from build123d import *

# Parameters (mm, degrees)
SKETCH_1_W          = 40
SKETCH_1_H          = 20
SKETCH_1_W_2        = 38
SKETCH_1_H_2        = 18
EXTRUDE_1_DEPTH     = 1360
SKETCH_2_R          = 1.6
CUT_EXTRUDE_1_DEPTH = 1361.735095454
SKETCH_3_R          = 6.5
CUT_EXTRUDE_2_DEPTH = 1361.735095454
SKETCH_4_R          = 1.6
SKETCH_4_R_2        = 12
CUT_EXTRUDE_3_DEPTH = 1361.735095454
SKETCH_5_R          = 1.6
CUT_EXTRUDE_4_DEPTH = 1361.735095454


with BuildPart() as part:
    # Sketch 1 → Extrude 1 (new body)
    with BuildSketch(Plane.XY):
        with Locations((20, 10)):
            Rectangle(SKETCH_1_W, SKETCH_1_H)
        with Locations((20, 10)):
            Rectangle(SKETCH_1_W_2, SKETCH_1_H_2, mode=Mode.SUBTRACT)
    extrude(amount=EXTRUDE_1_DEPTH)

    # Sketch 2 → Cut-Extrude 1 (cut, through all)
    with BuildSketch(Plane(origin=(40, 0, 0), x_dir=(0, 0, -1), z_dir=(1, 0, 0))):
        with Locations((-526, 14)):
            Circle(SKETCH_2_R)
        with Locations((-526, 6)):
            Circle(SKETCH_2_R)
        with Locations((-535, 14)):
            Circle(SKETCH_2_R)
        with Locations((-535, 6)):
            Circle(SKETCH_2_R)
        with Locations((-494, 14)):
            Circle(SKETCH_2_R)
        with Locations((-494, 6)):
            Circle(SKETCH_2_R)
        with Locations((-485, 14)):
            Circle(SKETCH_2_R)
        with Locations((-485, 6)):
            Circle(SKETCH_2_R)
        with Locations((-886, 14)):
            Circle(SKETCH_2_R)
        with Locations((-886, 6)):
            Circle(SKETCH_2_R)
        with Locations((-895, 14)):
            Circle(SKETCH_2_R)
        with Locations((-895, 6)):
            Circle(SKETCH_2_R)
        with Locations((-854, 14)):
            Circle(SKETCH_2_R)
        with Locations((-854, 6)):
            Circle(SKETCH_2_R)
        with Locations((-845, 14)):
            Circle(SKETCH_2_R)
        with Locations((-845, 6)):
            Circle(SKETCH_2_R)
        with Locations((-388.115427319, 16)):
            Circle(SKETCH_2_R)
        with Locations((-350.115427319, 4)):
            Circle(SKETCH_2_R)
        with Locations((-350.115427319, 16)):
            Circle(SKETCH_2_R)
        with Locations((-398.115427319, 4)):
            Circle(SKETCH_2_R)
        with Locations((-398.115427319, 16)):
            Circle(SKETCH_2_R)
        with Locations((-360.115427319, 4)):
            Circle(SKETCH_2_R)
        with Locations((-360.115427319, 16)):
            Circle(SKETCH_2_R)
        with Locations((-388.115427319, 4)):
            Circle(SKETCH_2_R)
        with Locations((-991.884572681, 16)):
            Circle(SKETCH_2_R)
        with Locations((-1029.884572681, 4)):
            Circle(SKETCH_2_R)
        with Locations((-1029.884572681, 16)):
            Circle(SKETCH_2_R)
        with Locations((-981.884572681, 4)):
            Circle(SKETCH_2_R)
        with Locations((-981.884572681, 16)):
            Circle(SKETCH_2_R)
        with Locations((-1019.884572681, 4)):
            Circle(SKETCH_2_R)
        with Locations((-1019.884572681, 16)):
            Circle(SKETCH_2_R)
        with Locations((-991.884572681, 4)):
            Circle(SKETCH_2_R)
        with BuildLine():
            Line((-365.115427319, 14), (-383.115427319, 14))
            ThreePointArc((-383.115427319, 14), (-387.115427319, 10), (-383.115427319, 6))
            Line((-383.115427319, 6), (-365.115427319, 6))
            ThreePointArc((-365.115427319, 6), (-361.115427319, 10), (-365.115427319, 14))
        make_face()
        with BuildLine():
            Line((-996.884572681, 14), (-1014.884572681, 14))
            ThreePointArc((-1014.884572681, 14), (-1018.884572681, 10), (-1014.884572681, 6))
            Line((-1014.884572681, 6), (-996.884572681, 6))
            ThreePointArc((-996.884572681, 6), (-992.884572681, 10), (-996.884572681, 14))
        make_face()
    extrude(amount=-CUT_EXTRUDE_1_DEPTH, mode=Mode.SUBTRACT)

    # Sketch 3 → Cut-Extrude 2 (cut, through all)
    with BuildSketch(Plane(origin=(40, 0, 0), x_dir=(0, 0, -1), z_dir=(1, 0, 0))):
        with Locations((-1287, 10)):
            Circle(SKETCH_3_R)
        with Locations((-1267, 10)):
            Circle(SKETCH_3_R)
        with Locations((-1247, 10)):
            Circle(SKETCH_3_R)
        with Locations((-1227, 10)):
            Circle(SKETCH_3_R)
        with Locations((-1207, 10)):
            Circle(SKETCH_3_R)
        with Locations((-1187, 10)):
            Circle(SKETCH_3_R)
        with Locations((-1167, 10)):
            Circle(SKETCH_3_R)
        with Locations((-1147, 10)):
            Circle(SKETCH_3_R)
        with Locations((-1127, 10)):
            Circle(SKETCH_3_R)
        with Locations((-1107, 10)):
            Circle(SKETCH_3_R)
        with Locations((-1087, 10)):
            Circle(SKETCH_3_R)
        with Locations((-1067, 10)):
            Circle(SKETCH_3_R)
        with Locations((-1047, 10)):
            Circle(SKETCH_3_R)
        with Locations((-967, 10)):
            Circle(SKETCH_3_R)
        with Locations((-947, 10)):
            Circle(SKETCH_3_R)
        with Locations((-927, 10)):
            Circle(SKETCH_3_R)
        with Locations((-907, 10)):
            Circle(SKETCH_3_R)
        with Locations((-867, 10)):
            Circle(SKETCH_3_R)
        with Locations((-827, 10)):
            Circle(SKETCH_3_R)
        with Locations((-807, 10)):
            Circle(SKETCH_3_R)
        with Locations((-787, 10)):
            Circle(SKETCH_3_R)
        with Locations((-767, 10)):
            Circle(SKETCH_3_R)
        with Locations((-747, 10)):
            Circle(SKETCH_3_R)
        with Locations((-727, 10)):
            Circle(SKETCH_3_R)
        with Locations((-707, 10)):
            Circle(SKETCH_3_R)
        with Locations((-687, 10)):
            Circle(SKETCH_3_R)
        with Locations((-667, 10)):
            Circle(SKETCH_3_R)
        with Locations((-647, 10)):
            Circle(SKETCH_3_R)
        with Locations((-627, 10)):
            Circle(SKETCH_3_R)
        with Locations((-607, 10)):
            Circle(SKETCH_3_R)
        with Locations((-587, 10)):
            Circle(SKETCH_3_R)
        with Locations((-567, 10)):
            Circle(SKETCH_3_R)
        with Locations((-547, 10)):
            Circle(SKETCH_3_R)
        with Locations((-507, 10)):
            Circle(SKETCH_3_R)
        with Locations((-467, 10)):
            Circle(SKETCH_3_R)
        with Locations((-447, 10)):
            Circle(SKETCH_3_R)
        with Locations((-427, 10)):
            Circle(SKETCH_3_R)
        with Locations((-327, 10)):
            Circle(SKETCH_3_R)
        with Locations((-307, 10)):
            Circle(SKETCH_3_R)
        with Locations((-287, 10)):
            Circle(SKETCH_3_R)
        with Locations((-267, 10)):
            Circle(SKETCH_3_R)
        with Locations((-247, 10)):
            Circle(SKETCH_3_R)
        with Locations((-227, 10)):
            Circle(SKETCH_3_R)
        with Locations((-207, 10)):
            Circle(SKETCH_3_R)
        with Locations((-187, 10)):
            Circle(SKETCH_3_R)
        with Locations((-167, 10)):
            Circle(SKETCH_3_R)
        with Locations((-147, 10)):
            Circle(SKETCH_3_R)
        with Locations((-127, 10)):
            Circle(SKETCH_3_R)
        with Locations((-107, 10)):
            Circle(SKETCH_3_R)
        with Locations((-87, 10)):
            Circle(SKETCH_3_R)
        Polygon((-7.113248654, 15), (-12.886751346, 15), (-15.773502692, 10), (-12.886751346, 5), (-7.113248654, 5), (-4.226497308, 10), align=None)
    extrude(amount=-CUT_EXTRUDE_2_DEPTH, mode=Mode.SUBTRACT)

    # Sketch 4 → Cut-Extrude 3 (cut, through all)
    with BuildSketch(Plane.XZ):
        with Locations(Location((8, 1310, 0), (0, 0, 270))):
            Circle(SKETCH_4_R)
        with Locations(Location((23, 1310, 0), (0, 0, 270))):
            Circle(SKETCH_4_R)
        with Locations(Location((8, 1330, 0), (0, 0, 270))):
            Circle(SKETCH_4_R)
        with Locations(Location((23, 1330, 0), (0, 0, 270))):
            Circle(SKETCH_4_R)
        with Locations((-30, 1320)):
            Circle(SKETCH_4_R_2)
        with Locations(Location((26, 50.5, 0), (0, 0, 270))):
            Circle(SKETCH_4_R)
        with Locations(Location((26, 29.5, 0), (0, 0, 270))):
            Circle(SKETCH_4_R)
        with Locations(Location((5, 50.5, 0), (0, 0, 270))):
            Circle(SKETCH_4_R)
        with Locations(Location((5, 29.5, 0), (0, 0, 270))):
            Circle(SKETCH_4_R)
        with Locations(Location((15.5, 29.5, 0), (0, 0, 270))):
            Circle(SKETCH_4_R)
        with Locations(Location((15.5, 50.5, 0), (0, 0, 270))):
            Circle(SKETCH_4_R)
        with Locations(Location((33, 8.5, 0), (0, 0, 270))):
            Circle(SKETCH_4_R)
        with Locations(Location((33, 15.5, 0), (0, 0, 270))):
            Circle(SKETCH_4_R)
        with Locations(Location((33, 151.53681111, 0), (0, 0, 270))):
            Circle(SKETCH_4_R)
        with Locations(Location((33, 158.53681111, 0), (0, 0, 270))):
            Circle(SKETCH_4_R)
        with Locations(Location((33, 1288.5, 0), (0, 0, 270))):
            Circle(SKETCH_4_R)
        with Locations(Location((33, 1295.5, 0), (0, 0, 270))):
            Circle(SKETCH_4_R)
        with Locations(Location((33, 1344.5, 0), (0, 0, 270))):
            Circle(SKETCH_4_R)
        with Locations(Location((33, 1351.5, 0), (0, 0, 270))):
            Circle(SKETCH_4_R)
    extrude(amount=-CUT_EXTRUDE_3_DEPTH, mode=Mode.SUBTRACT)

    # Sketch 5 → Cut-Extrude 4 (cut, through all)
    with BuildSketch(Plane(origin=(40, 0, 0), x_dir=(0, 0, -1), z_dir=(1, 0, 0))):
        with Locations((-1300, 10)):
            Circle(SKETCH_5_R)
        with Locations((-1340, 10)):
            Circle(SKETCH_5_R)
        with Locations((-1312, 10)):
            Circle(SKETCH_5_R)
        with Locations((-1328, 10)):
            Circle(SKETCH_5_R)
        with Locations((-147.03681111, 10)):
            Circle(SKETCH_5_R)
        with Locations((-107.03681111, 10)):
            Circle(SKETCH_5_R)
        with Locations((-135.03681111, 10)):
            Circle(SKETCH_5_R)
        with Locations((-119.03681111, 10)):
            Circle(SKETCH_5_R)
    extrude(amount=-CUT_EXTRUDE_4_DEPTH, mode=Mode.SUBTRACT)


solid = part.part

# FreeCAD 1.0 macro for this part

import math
import FreeCAD as App
import Part
import Sketcher
Q = App.Units.Quantity


def add_polygon(sketch, points):
    """Adds a closed chain of lines whose ends are joined by coincident constraints."""
    first, n = sketch.GeometryCount, len(points)
    for a, b in zip(points, points[1:] + points[:1]):
        sketch.addGeometry(Part.LineSegment(App.Vector(*a, 0), App.Vector(*b, 0)), False)
    for i in range(n):
        sketch.addConstraint(Sketcher.Constraint("Coincident", first + i, 2, first + (i + 1) % n, 1))

doc = App.newDocument("Part")
body = doc.addObject("PartDesign::Body", "Body")

sketch1 = body.newObject("Sketcher::SketchObject", "Sketch")
sketch1.AttachmentSupport = (doc.getObject("XY_Plane"), [""])
sketch1.MapMode = "FlatFace"
add_polygon(sketch1, [(0, 20), (0, 0), (40, 0), (40, 20)])
add_polygon(sketch1, [(39, 1), (1, 1), (1, 19), (39, 19)])
sketch1.addConstraint([
    Sketcher.Constraint("Vertical", 0),
    Sketcher.Constraint("Horizontal", 1),
    Sketcher.Constraint("Vertical", 2),
    Sketcher.Constraint("Horizontal", 3),
    Sketcher.Constraint("Horizontal", 4),
    Sketcher.Constraint("Vertical", 5),
    Sketcher.Constraint("Horizontal", 6),
    Sketcher.Constraint("Vertical", 7),
    Sketcher.Constraint("Coincident", 0, 2, -1, 1),
    Sketcher.Constraint("DistanceX", 1, 1, 1, 2, Q("40 mm")),
    Sketcher.Constraint("DistanceX", 4, 2, 4, 1, Q("38 mm")),
    Sketcher.Constraint("DistanceY", 0, 2, 0, 1, Q("20 mm")),
    Sketcher.Constraint("DistanceY", 5, 1, 5, 2, Q("18 mm")),
    Sketcher.Constraint("DistanceX", -1, 1, 4, 2, Q("1 mm")),
    Sketcher.Constraint("DistanceY", -1, 1, 4, 2, Q("1 mm")),
])
pad1 = body.newObject("PartDesign::Pad", "Pad")
pad1.Profile = sketch1
pad1.Length = 1360

sketch2 = body.newObject("Sketcher::SketchObject", "Sketch001")
sketch2.AttachmentSupport = (doc.getObject("YZ_Plane"), [""])
sketch2.MapMode = "FlatFace"
sketch2.AttachmentOffset = App.Placement(App.Vector(0, 0, 40), App.Rotation())
sketch2.addGeometry([
    Part.Circle(App.Vector(14, 526, 0), App.Vector(0, 0, 1), 1.6),
    Part.Circle(App.Vector(6, 526, 0), App.Vector(0, 0, 1), 1.6),
    Part.Circle(App.Vector(14, 535, 0), App.Vector(0, 0, 1), 1.6),
    Part.Circle(App.Vector(6, 535, 0), App.Vector(0, 0, 1), 1.6),
    Part.Circle(App.Vector(14, 494, 0), App.Vector(0, 0, 1), 1.6),
    Part.Circle(App.Vector(6, 494, 0), App.Vector(0, 0, 1), 1.6),
    Part.Circle(App.Vector(14, 485, 0), App.Vector(0, 0, 1), 1.6),
    Part.Circle(App.Vector(6, 485, 0), App.Vector(0, 0, 1), 1.6),
    Part.Circle(App.Vector(14, 886, 0), App.Vector(0, 0, 1), 1.6),
    Part.Circle(App.Vector(6, 886, 0), App.Vector(0, 0, 1), 1.6),
    Part.Circle(App.Vector(14, 895, 0), App.Vector(0, 0, 1), 1.6),
    Part.Circle(App.Vector(6, 895, 0), App.Vector(0, 0, 1), 1.6),
    Part.Circle(App.Vector(14, 854, 0), App.Vector(0, 0, 1), 1.6),
    Part.Circle(App.Vector(6, 854, 0), App.Vector(0, 0, 1), 1.6),
    Part.Circle(App.Vector(14, 845, 0), App.Vector(0, 0, 1), 1.6),
    Part.Circle(App.Vector(6, 845, 0), App.Vector(0, 0, 1), 1.6),
    Part.Circle(App.Vector(16, 388.115427, 0), App.Vector(0, 0, 1), 1.6),
    Part.Circle(App.Vector(4, 350.115427, 0), App.Vector(0, 0, 1), 1.6),
    Part.Circle(App.Vector(16, 350.115427, 0), App.Vector(0, 0, 1), 1.6),
    Part.Circle(App.Vector(4, 398.115427, 0), App.Vector(0, 0, 1), 1.6),
    Part.Circle(App.Vector(16, 398.115427, 0), App.Vector(0, 0, 1), 1.6),
    Part.Circle(App.Vector(4, 360.115427, 0), App.Vector(0, 0, 1), 1.6),
    Part.Circle(App.Vector(16, 360.115427, 0), App.Vector(0, 0, 1), 1.6),
    Part.Circle(App.Vector(4, 388.115427, 0), App.Vector(0, 0, 1), 1.6),
    Part.Circle(App.Vector(16, 991.884573, 0), App.Vector(0, 0, 1), 1.6),
    Part.Circle(App.Vector(4, 1029.884573, 0), App.Vector(0, 0, 1), 1.6),
    Part.Circle(App.Vector(16, 1029.884573, 0), App.Vector(0, 0, 1), 1.6),
    Part.Circle(App.Vector(4, 981.884573, 0), App.Vector(0, 0, 1), 1.6),
    Part.Circle(App.Vector(16, 981.884573, 0), App.Vector(0, 0, 1), 1.6),
    Part.Circle(App.Vector(4, 1019.884573, 0), App.Vector(0, 0, 1), 1.6),
    Part.Circle(App.Vector(16, 1019.884573, 0), App.Vector(0, 0, 1), 1.6),
    Part.Circle(App.Vector(4, 991.884573, 0), App.Vector(0, 0, 1), 1.6),
    Part.LineSegment(App.Vector(14, 365.115427, 0), App.Vector(14, 383.115427, 0)),
    Part.ArcOfCircle(Part.Circle(App.Vector(10, 383.115427, 0), App.Vector(0, 0, 1), 4), math.radians(0), math.radians(180)),
    Part.LineSegment(App.Vector(6, 383.115427, 0), App.Vector(6, 365.115427, 0)),
    Part.ArcOfCircle(Part.Circle(App.Vector(10, 365.115427, 0), App.Vector(0, 0, 1), 4), math.radians(180), math.radians(360)),
    Part.LineSegment(App.Vector(14, 996.884573, 0), App.Vector(14, 1014.884573, 0)),
    Part.ArcOfCircle(Part.Circle(App.Vector(10, 1014.884573, 0), App.Vector(0, 0, 1), 4), math.radians(0), math.radians(180)),
    Part.LineSegment(App.Vector(6, 1014.884573, 0), App.Vector(6, 996.884573, 0)),
    Part.ArcOfCircle(Part.Circle(App.Vector(10, 996.884573, 0), App.Vector(0, 0, 1), 4), math.radians(180), math.radians(360)),
], False)
sketch2.addConstraint([
    Sketcher.Constraint("Tangent", 32, 2, 33, 1),
    Sketcher.Constraint("Tangent", 33, 2, 34, 1),
    Sketcher.Constraint("Tangent", 34, 2, 35, 1),
    Sketcher.Constraint("Tangent", 35, 2, 32, 1),
    Sketcher.Constraint("Tangent", 36, 2, 37, 1),
    Sketcher.Constraint("Tangent", 37, 2, 38, 1),
    Sketcher.Constraint("Tangent", 38, 2, 39, 1),
    Sketcher.Constraint("Tangent", 39, 2, 36, 1),
    Sketcher.Constraint("Vertical", 32),
    Sketcher.Constraint("Vertical", 34),
    Sketcher.Constraint("Vertical", 36),
    Sketcher.Constraint("Vertical", 38),
    Sketcher.Constraint("Equal", 0, 1),
    Sketcher.Constraint("Equal", 1, 2),
    Sketcher.Constraint("Equal", 2, 3),
    Sketcher.Constraint("Equal", 3, 4),
    Sketcher.Constraint("Equal", 4, 5),
    Sketcher.Constraint("Equal", 5, 6),
    Sketcher.Constraint("Equal", 6, 7),
    Sketcher.Constraint("Equal", 7, 8),
    Sketcher.Constraint("Equal", 8, 9),
    Sketcher.Constraint("Equal", 9, 10),
    Sketcher.Constraint("Equal", 10, 11),
    Sketcher.Constraint("Equal", 11, 12),
    Sketcher.Constraint("Equal", 12, 13),
    Sketcher.Constraint("Equal", 13, 14),
    Sketcher.Constraint("Equal", 14, 15),
    Sketcher.Constraint("Equal", 15, 16),
    Sketcher.Constraint("Equal", 16, 17),
    Sketcher.Constraint("Equal", 17, 18),
    Sketcher.Constraint("Equal", 18, 19),
    Sketcher.Constraint("Equal", 19, 20),
    Sketcher.Constraint("Equal", 20, 21),
    Sketcher.Constraint("Equal", 21, 22),
    Sketcher.Constraint("Equal", 22, 23),
    Sketcher.Constraint("Equal", 23, 24),
    Sketcher.Constraint("Equal", 24, 25),
    Sketcher.Constraint("Equal", 25, 26),
    Sketcher.Constraint("Equal", 26, 27),
    Sketcher.Constraint("Equal", 27, 28),
    Sketcher.Constraint("Equal", 28, 29),
    Sketcher.Constraint("Equal", 29, 30),
    Sketcher.Constraint("Equal", 30, 31),
    Sketcher.Constraint("Equal", 35, 37),
    Sketcher.Constraint("Horizontal", 0, 3, 1, 3),
    Sketcher.Constraint("Horizontal", 2, 3, 3, 3),
    Sketcher.Constraint("Horizontal", 4, 3, 5, 3),
    Sketcher.Constraint("Horizontal", 6, 3, 7, 3),
    Sketcher.Constraint("Horizontal", 8, 3, 9, 3),
    Sketcher.Constraint("Horizontal", 10, 3, 11, 3),
    Sketcher.Constraint("Horizontal", 12, 3, 13, 3),
    Sketcher.Constraint("Horizontal", 14, 3, 15, 3),
    Sketcher.Constraint("Horizontal", 17, 3, 18, 3),
    Sketcher.Constraint("Horizontal", 19, 3, 20, 3),
    Sketcher.Constraint("Horizontal", 21, 3, 22, 3),
    Sketcher.Constraint("Horizontal", 16, 3, 23, 3),
    Sketcher.Constraint("Horizontal", 25, 3, 26, 3),
    Sketcher.Constraint("Horizontal", 27, 3, 28, 3),
    Sketcher.Constraint("Horizontal", 29, 3, 30, 3),
    Sketcher.Constraint("Horizontal", 24, 3, 31, 3),
    Sketcher.Constraint("Vertical", 0, 3, 2, 3),
    Sketcher.Constraint("Vertical", 1, 3, 3, 3),
    Sketcher.Constraint("Vertical", 2, 3, 4, 3),
    Sketcher.Constraint("Vertical", 3, 3, 5, 3),
    Sketcher.Constraint("Vertical", 4, 3, 6, 3),
    Sketcher.Constraint("Vertical", 5, 3, 7, 3),
    Sketcher.Constraint("Vertical", 6, 3, 8, 3),
    Sketcher.Constraint("Vertical", 7, 3, 9, 3),
    Sketcher.Constraint("Vertical", 8, 3, 10, 3),
    Sketcher.Constraint("Vertical", 9, 3, 11, 3),
    Sketcher.Constraint("Vertical", 10, 3, 12, 3),
    Sketcher.Constraint("Vertical", 11, 3, 13, 3),
    Sketcher.Constraint("Vertical", 12, 3, 14, 3),
    Sketcher.Constraint("Vertical", 13, 3, 15, 3),
    Sketcher.Constraint("Vertical", 16, 3, 18, 3),
    Sketcher.Constraint("Vertical", 17, 3, 19, 3),
    Sketcher.Constraint("Vertical", 18, 3, 20, 3),
    Sketcher.Constraint("Vertical", 19, 3, 21, 3),
    Sketcher.Constraint("Vertical", 20, 3, 22, 3),
    Sketcher.Constraint("Vertical", 21, 3, 23, 3),
    Sketcher.Constraint("Vertical", 22, 3, 24, 3),
    Sketcher.Constraint("Vertical", 23, 3, 25, 3),
    Sketcher.Constraint("Vertical", 24, 3, 26, 3),
    Sketcher.Constraint("Vertical", 25, 3, 27, 3),
    Sketcher.Constraint("Vertical", 26, 3, 28, 3),
    Sketcher.Constraint("Vertical", 27, 3, 29, 3),
    Sketcher.Constraint("Vertical", 28, 3, 30, 3),
    Sketcher.Constraint("Vertical", 29, 3, 31, 3),
    Sketcher.Constraint("Vertical", 35, 3, 37, 3),
    Sketcher.Constraint("Vertical", 14, 3, 32, 2),
    Sketcher.Constraint("Vertical", 15, 3, 33, 2),
    Sketcher.Constraint("Equal", 34, 36),
    Sketcher.Constraint("Radius", 33, Q("4 mm")),
    Sketcher.Constraint("Diameter", 0, Q("3.2 mm")),
    Sketcher.Constraint("DistanceY", 32, 1, 32, 2, Q("18 mm")),
    Sketcher.Constraint("DistanceX", -1, 1, 0, 3, Q("14 mm")),
    Sketcher.Constraint("DistanceY", -1, 1, 0, 3, Q("526 mm")),
    Sketcher.Constraint("DistanceY", -1, 1, 2, 3, Q("535 mm")),
    Sketcher.Constraint("DistanceY", -1, 1, 4, 3, Q("494 mm")),
    Sketcher.Constraint("DistanceY", -1, 1, 6, 3, Q("485 mm")),
    Sketcher.Constraint("DistanceY", -1, 1, 8, 3, Q("886 mm")),
    Sketcher.Constraint("DistanceY", -1, 1, 10, 3, Q("895 mm")),
    Sketcher.Constraint("DistanceY", -1, 1, 12, 3, Q("854 mm")),
    Sketcher.Constraint("DistanceY", -1, 1, 14, 3, Q("845 mm")),
    Sketcher.Constraint("DistanceX", -1, 1, 16, 3, Q("16 mm")),
    Sketcher.Constraint("DistanceX", -1, 1, 17, 3, Q("4 mm")),
    Sketcher.Constraint("DistanceY", 17, 3, 16, 3, Q("38 mm")),
    Sketcher.Constraint("DistanceY", 16, 3, 19, 3, Q("10 mm")),
    Sketcher.Constraint("DistanceY", 17, 3, 21, 3, Q("10 mm")),
    Sketcher.Constraint("DistanceY", 24, 3, 25, 3, Q("38 mm")),
    Sketcher.Constraint("DistanceY", 27, 3, 24, 3, Q("10 mm")),
    Sketcher.Constraint("DistanceY", 29, 3, 25, 3, Q("10 mm")),
    Sketcher.Constraint("DistanceY", 33, 3, 16, 3, Q("5 mm")),
    Sketcher.Constraint("DistanceY", 37, 3, 29, 3, Q("5 mm")),
    Sketcher.Constraint("DistanceY", -1, 1, 16, 3, Q("388.115427 mm")),
    Sketcher.Constraint("DistanceY", -1, 1, 24, 3, Q("991.884573 mm")),
])
pocket1 = body.newObject("PartDesign::Pocket", "Pocket")
pocket1.Profile = sketch2
pocket1.Type = "ThroughAll"

sketch3 = body.newObject("Sketcher::SketchObject", "Sketch002")
sketch3.AttachmentSupport = (doc.getObject("YZ_Plane"), [""])
sketch3.MapMode = "FlatFace"
sketch3.AttachmentOffset = App.Placement(App.Vector(0, 0, 40), App.Rotation())
sketch3.addGeometry(Part.Circle(App.Vector(10, 1287, 0), App.Vector(0, 0, 1), 6.5), False)
sketch3.addGeometry(Part.Circle(App.Vector(10, 1267, 0), App.Vector(0, 0, 1), 6.5), False)
sketch3.addGeometry(Part.Circle(App.Vector(10, 1247, 0), App.Vector(0, 0, 1), 6.5), False)
sketch3.addGeometry(Part.Circle(App.Vector(10, 1227, 0), App.Vector(0, 0, 1), 6.5), False)
sketch3.addGeometry(Part.Circle(App.Vector(10, 1207, 0), App.Vector(0, 0, 1), 6.5), False)
sketch3.addGeometry(Part.Circle(App.Vector(10, 1187, 0), App.Vector(0, 0, 1), 6.5), False)
sketch3.addGeometry(Part.Circle(App.Vector(10, 1167, 0), App.Vector(0, 0, 1), 6.5), False)
sketch3.addGeometry(Part.Circle(App.Vector(10, 1147, 0), App.Vector(0, 0, 1), 6.5), False)
sketch3.addGeometry(Part.Circle(App.Vector(10, 1127, 0), App.Vector(0, 0, 1), 6.5), False)
sketch3.addGeometry(Part.Circle(App.Vector(10, 1107, 0), App.Vector(0, 0, 1), 6.5), False)
sketch3.addGeometry(Part.Circle(App.Vector(10, 1087, 0), App.Vector(0, 0, 1), 6.5), False)
sketch3.addGeometry(Part.Circle(App.Vector(10, 1067, 0), App.Vector(0, 0, 1), 6.5), False)
sketch3.addGeometry(Part.Circle(App.Vector(10, 1047, 0), App.Vector(0, 0, 1), 6.5), False)
sketch3.addGeometry(Part.Circle(App.Vector(10, 967, 0), App.Vector(0, 0, 1), 6.5), False)
sketch3.addGeometry(Part.Circle(App.Vector(10, 947, 0), App.Vector(0, 0, 1), 6.5), False)
sketch3.addGeometry(Part.Circle(App.Vector(10, 927, 0), App.Vector(0, 0, 1), 6.5), False)
sketch3.addGeometry(Part.Circle(App.Vector(10, 907, 0), App.Vector(0, 0, 1), 6.5), False)
sketch3.addGeometry(Part.Circle(App.Vector(10, 867, 0), App.Vector(0, 0, 1), 6.5), False)
sketch3.addGeometry(Part.Circle(App.Vector(10, 827, 0), App.Vector(0, 0, 1), 6.5), False)
sketch3.addGeometry(Part.Circle(App.Vector(10, 807, 0), App.Vector(0, 0, 1), 6.5), False)
sketch3.addGeometry(Part.Circle(App.Vector(10, 787, 0), App.Vector(0, 0, 1), 6.5), False)
sketch3.addGeometry(Part.Circle(App.Vector(10, 767, 0), App.Vector(0, 0, 1), 6.5), False)
sketch3.addGeometry(Part.Circle(App.Vector(10, 747, 0), App.Vector(0, 0, 1), 6.5), False)
sketch3.addGeometry(Part.Circle(App.Vector(10, 727, 0), App.Vector(0, 0, 1), 6.5), False)
sketch3.addGeometry(Part.Circle(App.Vector(10, 707, 0), App.Vector(0, 0, 1), 6.5), False)
sketch3.addGeometry(Part.Circle(App.Vector(10, 687, 0), App.Vector(0, 0, 1), 6.5), False)
sketch3.addGeometry(Part.Circle(App.Vector(10, 667, 0), App.Vector(0, 0, 1), 6.5), False)
sketch3.addGeometry(Part.Circle(App.Vector(10, 647, 0), App.Vector(0, 0, 1), 6.5), False)
sketch3.addGeometry(Part.Circle(App.Vector(10, 627, 0), App.Vector(0, 0, 1), 6.5), False)
sketch3.addGeometry(Part.Circle(App.Vector(10, 607, 0), App.Vector(0, 0, 1), 6.5), False)
sketch3.addGeometry(Part.Circle(App.Vector(10, 587, 0), App.Vector(0, 0, 1), 6.5), False)
sketch3.addGeometry(Part.Circle(App.Vector(10, 567, 0), App.Vector(0, 0, 1), 6.5), False)
sketch3.addGeometry(Part.Circle(App.Vector(10, 547, 0), App.Vector(0, 0, 1), 6.5), False)
sketch3.addGeometry(Part.Circle(App.Vector(10, 507, 0), App.Vector(0, 0, 1), 6.5), False)
sketch3.addGeometry(Part.Circle(App.Vector(10, 467, 0), App.Vector(0, 0, 1), 6.5), False)
sketch3.addGeometry(Part.Circle(App.Vector(10, 447, 0), App.Vector(0, 0, 1), 6.5), False)
sketch3.addGeometry(Part.Circle(App.Vector(10, 427, 0), App.Vector(0, 0, 1), 6.5), False)
sketch3.addGeometry(Part.Circle(App.Vector(10, 327, 0), App.Vector(0, 0, 1), 6.5), False)
sketch3.addGeometry(Part.Circle(App.Vector(10, 307, 0), App.Vector(0, 0, 1), 6.5), False)
sketch3.addGeometry(Part.Circle(App.Vector(10, 287, 0), App.Vector(0, 0, 1), 6.5), False)
sketch3.addGeometry(Part.Circle(App.Vector(10, 267, 0), App.Vector(0, 0, 1), 6.5), False)
sketch3.addGeometry(Part.Circle(App.Vector(10, 247, 0), App.Vector(0, 0, 1), 6.5), False)
sketch3.addGeometry(Part.Circle(App.Vector(10, 227, 0), App.Vector(0, 0, 1), 6.5), False)
sketch3.addGeometry(Part.Circle(App.Vector(10, 207, 0), App.Vector(0, 0, 1), 6.5), False)
sketch3.addGeometry(Part.Circle(App.Vector(10, 187, 0), App.Vector(0, 0, 1), 6.5), False)
sketch3.addGeometry(Part.Circle(App.Vector(10, 167, 0), App.Vector(0, 0, 1), 6.5), False)
sketch3.addGeometry(Part.Circle(App.Vector(10, 147, 0), App.Vector(0, 0, 1), 6.5), False)
sketch3.addGeometry(Part.Circle(App.Vector(10, 127, 0), App.Vector(0, 0, 1), 6.5), False)
sketch3.addGeometry(Part.Circle(App.Vector(10, 107, 0), App.Vector(0, 0, 1), 6.5), False)
sketch3.addGeometry(Part.Circle(App.Vector(10, 87, 0), App.Vector(0, 0, 1), 6.5), False)
add_polygon(sketch3, [(15, 7.113249), (15, 12.886751), (10, 15.773503), (5, 12.886751), (5, 7.113249), (10, 4.226497)])
sketch3.addConstraint([
    Sketcher.Constraint("Vertical", 50),
    Sketcher.Constraint("Vertical", 53),
    Sketcher.Constraint("Equal", 0, 1),
    Sketcher.Constraint("Equal", 1, 2),
    Sketcher.Constraint("Equal", 2, 3),
    Sketcher.Constraint("Equal", 3, 4),
    Sketcher.Constraint("Equal", 4, 5),
    Sketcher.Constraint("Equal", 5, 6),
    Sketcher.Constraint("Equal", 6, 7),
    Sketcher.Constraint("Equal", 7, 8),
    Sketcher.Constraint("Equal", 8, 9),
    Sketcher.Constraint("Equal", 9, 10),
    Sketcher.Constraint("Equal", 10, 11),
    Sketcher.Constraint("Equal", 11, 12),
    Sketcher.Constraint("Equal", 12, 13),
    Sketcher.Constraint("Equal", 13, 14),
    Sketcher.Constraint("Equal", 14, 15),
    Sketcher.Constraint("Equal", 15, 16),
    Sketcher.Constraint("Equal", 16, 17),
    Sketcher.Constraint("Equal", 17, 18),
    Sketcher.Constraint("Equal", 18, 19),
    Sketcher.Constraint("Equal", 19, 20),
    Sketcher.Constraint("Equal", 20, 21),
    Sketcher.Constraint("Equal", 21, 22),
    Sketcher.Constraint("Equal", 22, 23),
    Sketcher.Constraint("Equal", 23, 24),
    Sketcher.Constraint("Equal", 24, 25),
    Sketcher.Constraint("Equal", 25, 26),
    Sketcher.Constraint("Equal", 26, 27),
    Sketcher.Constraint("Equal", 27, 28),
    Sketcher.Constraint("Equal", 28, 29),
    Sketcher.Constraint("Equal", 29, 30),
    Sketcher.Constraint("Equal", 30, 31),
    Sketcher.Constraint("Equal", 31, 32),
    Sketcher.Constraint("Equal", 32, 33),
    Sketcher.Constraint("Equal", 33, 34),
    Sketcher.Constraint("Equal", 34, 35),
    Sketcher.Constraint("Equal", 35, 36),
    Sketcher.Constraint("Equal", 36, 37),
    Sketcher.Constraint("Equal", 37, 38),
    Sketcher.Constraint("Equal", 38, 39),
    Sketcher.Constraint("Equal", 39, 40),
    Sketcher.Constraint("Equal", 40, 41),
    Sketcher.Constraint("Equal", 41, 42),
    Sketcher.Constraint("Equal", 42, 43),
    Sketcher.Constraint("Equal", 43, 44),
    Sketcher.Constraint("Equal", 44, 45),
    Sketcher.Constraint("Equal", 45, 46),
    Sketcher.Constraint("Equal", 46, 47),
    Sketcher.Constraint("Equal", 47, 48),
    Sketcher.Constraint("Equal", 48, 49),
    Sketcher.Constraint("Parallel", 51, 54),
    Sketcher.Constraint("Parallel", 52, 55),
    Sketcher.Constraint("Horizontal", 50, 2, 52, 2),
    Sketcher.Constraint("Horizontal", 53, 2, 55, 2),
    Sketcher.Constraint("Vertical", 0, 3, 1, 3),
    Sketcher.Constraint("Vertical", 1, 3, 2, 3),
    Sketcher.Constraint("Vertical", 2, 3, 3, 3),
    Sketcher.Constraint("Vertical", 3, 3, 4, 3),
    Sketcher.Constraint("Vertical", 4, 3, 5, 3),
    Sketcher.Constraint("Vertical", 5, 3, 6, 3),
    Sketcher.Constraint("Vertical", 6, 3, 7, 3),
    Sketcher.Constraint("Vertical", 7, 3, 8, 3),
    Sketcher.Constraint("Vertical", 8, 3, 9, 3),
    Sketcher.Constraint("Vertical", 9, 3, 10, 3),
    Sketcher.Constraint("Vertical", 10, 3, 11, 3),
    Sketcher.Constraint("Vertical", 11, 3, 12, 3),
    Sketcher.Constraint("Vertical", 12, 3, 13, 3),
    Sketcher.Constraint("Vertical", 13, 3, 14, 3),
    Sketcher.Constraint("Vertical", 14, 3, 15, 3),
    Sketcher.Constraint("Vertical", 15, 3, 16, 3),
    Sketcher.Constraint("Vertical", 16, 3, 17, 3),
    Sketcher.Constraint("Vertical", 17, 3, 18, 3),
    Sketcher.Constraint("Vertical", 18, 3, 19, 3),
    Sketcher.Constraint("Vertical", 19, 3, 20, 3),
    Sketcher.Constraint("Vertical", 20, 3, 21, 3),
    Sketcher.Constraint("Vertical", 21, 3, 22, 3),
    Sketcher.Constraint("Vertical", 22, 3, 23, 3),
    Sketcher.Constraint("Vertical", 23, 3, 24, 3),
    Sketcher.Constraint("Vertical", 24, 3, 25, 3),
    Sketcher.Constraint("Vertical", 25, 3, 26, 3),
    Sketcher.Constraint("Vertical", 26, 3, 27, 3),
    Sketcher.Constraint("Vertical", 27, 3, 28, 3),
    Sketcher.Constraint("Vertical", 28, 3, 29, 3),
    Sketcher.Constraint("Vertical", 29, 3, 30, 3),
    Sketcher.Constraint("Vertical", 30, 3, 31, 3),
    Sketcher.Constraint("Vertical", 31, 3, 32, 3),
    Sketcher.Constraint("Vertical", 32, 3, 33, 3),
    Sketcher.Constraint("Vertical", 33, 3, 34, 3),
    Sketcher.Constraint("Vertical", 34, 3, 35, 3),
    Sketcher.Constraint("Vertical", 35, 3, 36, 3),
    Sketcher.Constraint("Vertical", 36, 3, 37, 3),
    Sketcher.Constraint("Vertical", 37, 3, 38, 3),
    Sketcher.Constraint("Vertical", 38, 3, 39, 3),
    Sketcher.Constraint("Vertical", 39, 3, 40, 3),
    Sketcher.Constraint("Vertical", 40, 3, 41, 3),
    Sketcher.Constraint("Vertical", 41, 3, 42, 3),
    Sketcher.Constraint("Vertical", 42, 3, 43, 3),
    Sketcher.Constraint("Vertical", 43, 3, 44, 3),
    Sketcher.Constraint("Vertical", 44, 3, 45, 3),
    Sketcher.Constraint("Vertical", 45, 3, 46, 3),
    Sketcher.Constraint("Vertical", 46, 3, 47, 3),
    Sketcher.Constraint("Vertical", 47, 3, 48, 3),
    Sketcher.Constraint("Vertical", 48, 3, 49, 3),
    Sketcher.Constraint("Vertical", 49, 3, 51, 2),
    Sketcher.Constraint("Vertical", 51, 2, 54, 2),
    Sketcher.Constraint("Diameter", 0, Q("13 mm")),
    Sketcher.Constraint("Angle", 51, Q("150 deg")),
    Sketcher.Constraint("DistanceX", -1, 1, 0, 3, Q("10 mm")),
    Sketcher.Constraint("DistanceY", -1, 1, 0, 3, Q("1287 mm")),
    Sketcher.Constraint("DistanceY", -1, 1, 1, 3, Q("1267 mm")),
    Sketcher.Constraint("DistanceY", -1, 1, 2, 3, Q("1247 mm")),
    Sketcher.Constraint("DistanceY", -1, 1, 3, 3, Q("1227 mm")),
    Sketcher.Constraint("DistanceY", -1, 1, 4, 3, Q("1207 mm")),
    Sketcher.Constraint("DistanceY", -1, 1, 5, 3, Q("1187 mm")),
    Sketcher.Constraint("DistanceY", -1, 1, 6, 3, Q("1167 mm")),
    Sketcher.Constraint("DistanceY", -1, 1, 7, 3, Q("1147 mm")),
    Sketcher.Constraint("DistanceY", -1, 1, 8, 3, Q("1127 mm")),
    Sketcher.Constraint("DistanceY", -1, 1, 9, 3, Q("1107 mm")),
    Sketcher.Constraint("DistanceY", -1, 1, 10, 3, Q("1087 mm")),
    Sketcher.Constraint("DistanceY", -1, 1, 11, 3, Q("1067 mm")),
    Sketcher.Constraint("DistanceY", -1, 1, 12, 3, Q("1047 mm")),
    Sketcher.Constraint("DistanceY", -1, 1, 13, 3, Q("967 mm")),
    Sketcher.Constraint("DistanceY", -1, 1, 14, 3, Q("947 mm")),
    Sketcher.Constraint("DistanceY", -1, 1, 15, 3, Q("927 mm")),
    Sketcher.Constraint("DistanceY", -1, 1, 16, 3, Q("907 mm")),
    Sketcher.Constraint("DistanceY", -1, 1, 17, 3, Q("867 mm")),
    Sketcher.Constraint("DistanceY", -1, 1, 18, 3, Q("827 mm")),
    Sketcher.Constraint("DistanceY", -1, 1, 19, 3, Q("807 mm")),
    Sketcher.Constraint("DistanceY", -1, 1, 20, 3, Q("787 mm")),
    Sketcher.Constraint("DistanceY", -1, 1, 21, 3, Q("767 mm")),
    Sketcher.Constraint("DistanceY", -1, 1, 22, 3, Q("747 mm")),
    Sketcher.Constraint("DistanceY", -1, 1, 23, 3, Q("727 mm")),
    Sketcher.Constraint("DistanceY", -1, 1, 24, 3, Q("707 mm")),
    Sketcher.Constraint("DistanceY", -1, 1, 25, 3, Q("687 mm")),
    Sketcher.Constraint("DistanceY", -1, 1, 26, 3, Q("667 mm")),
    Sketcher.Constraint("DistanceY", -1, 1, 27, 3, Q("647 mm")),
    Sketcher.Constraint("DistanceY", -1, 1, 28, 3, Q("627 mm")),
    Sketcher.Constraint("DistanceY", -1, 1, 29, 3, Q("607 mm")),
    Sketcher.Constraint("DistanceY", -1, 1, 30, 3, Q("587 mm")),
    Sketcher.Constraint("DistanceY", -1, 1, 31, 3, Q("567 mm")),
    Sketcher.Constraint("DistanceY", -1, 1, 32, 3, Q("547 mm")),
    Sketcher.Constraint("DistanceY", -1, 1, 33, 3, Q("507 mm")),
    Sketcher.Constraint("DistanceY", -1, 1, 34, 3, Q("467 mm")),
    Sketcher.Constraint("DistanceY", -1, 1, 35, 3, Q("447 mm")),
    Sketcher.Constraint("DistanceY", -1, 1, 36, 3, Q("427 mm")),
    Sketcher.Constraint("DistanceY", -1, 1, 37, 3, Q("327 mm")),
    Sketcher.Constraint("DistanceY", -1, 1, 38, 3, Q("307 mm")),
    Sketcher.Constraint("DistanceY", -1, 1, 39, 3, Q("287 mm")),
    Sketcher.Constraint("DistanceY", -1, 1, 40, 3, Q("267 mm")),
    Sketcher.Constraint("DistanceY", -1, 1, 41, 3, Q("247 mm")),
    Sketcher.Constraint("DistanceY", -1, 1, 42, 3, Q("227 mm")),
    Sketcher.Constraint("DistanceY", -1, 1, 43, 3, Q("207 mm")),
    Sketcher.Constraint("DistanceY", -1, 1, 44, 3, Q("187 mm")),
    Sketcher.Constraint("DistanceY", -1, 1, 45, 3, Q("167 mm")),
    Sketcher.Constraint("DistanceY", -1, 1, 46, 3, Q("147 mm")),
    Sketcher.Constraint("DistanceY", -1, 1, 47, 3, Q("127 mm")),
    Sketcher.Constraint("DistanceY", -1, 1, 48, 3, Q("107 mm")),
    Sketcher.Constraint("DistanceY", -1, 1, 49, 3, Q("87 mm")),
    Sketcher.Constraint("DistanceX", -1, 1, 50, 2, Q("15 mm")),
    Sketcher.Constraint("DistanceY", 50, 1, 50, 2, Q("5.773503 mm")),
    Sketcher.Constraint("DistanceY", -1, 1, 50, 2, Q("12.886751 mm")),
])
pocket2 = body.newObject("PartDesign::Pocket", "Pocket001")
pocket2.Profile = sketch3
pocket2.Type = "ThroughAll"

sketch4 = body.newObject("Sketcher::SketchObject", "Sketch003")
sketch4.AttachmentSupport = (doc.getObject("XZ_Plane"), [""])
sketch4.MapMode = "FlatFace"
sketch4.addGeometry([
    Part.Circle(App.Vector(8, 1310, 0), App.Vector(0, 0, 1), 1.6),
    Part.Circle(App.Vector(23, 1310, 0), App.Vector(0, 0, 1), 1.6),
    Part.Circle(App.Vector(8, 1330, 0), App.Vector(0, 0, 1), 1.6),
    Part.Circle(App.Vector(23, 1330, 0), App.Vector(0, 0, 1), 1.6),
    Part.Circle(App.Vector(-30, 1320, 0), App.Vector(0, 0, 1), 12),
    Part.Circle(App.Vector(26, 50.5, 0), App.Vector(0, 0, 1), 1.6),
    Part.Circle(App.Vector(26, 29.5, 0), App.Vector(0, 0, 1), 1.6),
    Part.Circle(App.Vector(5, 50.5, 0), App.Vector(0, 0, 1), 1.6),
    Part.Circle(App.Vector(5, 29.5, 0), App.Vector(0, 0, 1), 1.6),
    Part.Circle(App.Vector(15.5, 29.5, 0), App.Vector(0, 0, 1), 1.6),
    Part.Circle(App.Vector(15.5, 50.5, 0), App.Vector(0, 0, 1), 1.6),
    Part.Circle(App.Vector(33, 8.5, 0), App.Vector(0, 0, 1), 1.6),
    Part.Circle(App.Vector(33, 15.5, 0), App.Vector(0, 0, 1), 1.6),
    Part.Circle(App.Vector(33, 151.536811, 0), App.Vector(0, 0, 1), 1.6),
    Part.Circle(App.Vector(33, 158.536811, 0), App.Vector(0, 0, 1), 1.6),
    Part.Circle(App.Vector(33, 1288.5, 0), App.Vector(0, 0, 1), 1.6),
    Part.Circle(App.Vector(33, 1295.5, 0), App.Vector(0, 0, 1), 1.6),
    Part.Circle(App.Vector(33, 1344.5, 0), App.Vector(0, 0, 1), 1.6),
    Part.Circle(App.Vector(33, 1351.5, 0), App.Vector(0, 0, 1), 1.6),
], False)
sketch4.addConstraint([
    Sketcher.Constraint("Equal", 0, 1),
    Sketcher.Constraint("Equal", 1, 2),
    Sketcher.Constraint("Equal", 2, 3),
    Sketcher.Constraint("Equal", 3, 5),
    Sketcher.Constraint("Equal", 5, 6),
    Sketcher.Constraint("Equal", 6, 7),
    Sketcher.Constraint("Equal", 7, 8),
    Sketcher.Constraint("Equal", 8, 9),
    Sketcher.Constraint("Equal", 9, 10),
    Sketcher.Constraint("Equal", 10, 11),
    Sketcher.Constraint("Equal", 11, 12),
    Sketcher.Constraint("Equal", 12, 13),
    Sketcher.Constraint("Equal", 13, 14),
    Sketcher.Constraint("Equal", 14, 15),
    Sketcher.Constraint("Equal", 15, 16),
    Sketcher.Constraint("Equal", 16, 17),
    Sketcher.Constraint("Equal", 17, 18),
    Sketcher.Constraint("Horizontal", 0, 3, 1, 3),
    Sketcher.Constraint("Horizontal", 2, 3, 3, 3),
    Sketcher.Constraint("Horizontal", 5, 3, 7, 3),
    Sketcher.Constraint("Horizontal", 6, 3, 8, 3),
    Sketcher.Constraint("Horizontal", 8, 3, 9, 3),
    Sketcher.Constraint("Horizontal", 7, 3, 10, 3),
    Sketcher.Constraint("Vertical", 0, 3, 2, 3),
    Sketcher.Constraint("Vertical", 1, 3, 3, 3),
    Sketcher.Constraint("Vertical", 5, 3, 6, 3),
    Sketcher.Constraint("Vertical", 7, 3, 8, 3),
    Sketcher.Constraint("Vertical", 9, 3, 10, 3),
    Sketcher.Constraint("Vertical", 11, 3, 12, 3),
    Sketcher.Constraint("Vertical", 12, 3, 13, 3),
    Sketcher.Constraint("Vertical", 13, 3, 14, 3),
    Sketcher.Constraint("Vertical", 14, 3, 15, 3),
    Sketcher.Constraint("Vertical", 15, 3, 16, 3),
    Sketcher.Constraint("Vertical", 16, 3, 17, 3),
    Sketcher.Constraint("Vertical", 17, 3, 18, 3),
    Sketcher.Constraint("Diameter", 4, Q("24 mm")),
    Sketcher.Constraint("Diameter", 0, Q("3.2 mm")),
    Sketcher.Constraint("DistanceX", -1, 1, 0, 3, Q("8 mm")),
    Sketcher.Constraint("DistanceY", -1, 1, 0, 3, Q("1310 mm")),
    Sketcher.Constraint("DistanceX", -1, 1, 1, 3, Q("23 mm")),
    Sketcher.Constraint("DistanceY", -1, 1, 2, 3, Q("1330 mm")),
    Sketcher.Constraint("DistanceX", 4, 3, -1, 1, Q("30 mm")),
    Sketcher.Constraint("DistanceY", -1, 1, 4, 3, Q("1320 mm")),
    Sketcher.Constraint("DistanceX", -1, 1, 5, 3, Q("26 mm")),
    Sketcher.Constraint("DistanceX", -1, 1, 7, 3, Q("5 mm")),
    Sketcher.Constraint("DistanceX", -1, 1, 11, 3, Q("33 mm")),
    Sketcher.Constraint("DistanceY", 6, 3, 5, 3, Q("21 mm")),
    Sketcher.Constraint("DistanceY", 11, 3, 6, 3, Q("21 mm")),
    Sketcher.Constraint("DistanceY", 11, 3, 12, 3, Q("7 mm")),
    Sketcher.Constraint("DistanceY", 13, 3, 14, 3, Q("7 mm")),
    Sketcher.Constraint("DistanceY", 15, 3, 16, 3, Q("7 mm")),
    Sketcher.Constraint("DistanceY", 16, 3, 17, 3, Q("49 mm")),
    Sketcher.Constraint("DistanceY", 17, 3, 18, 3, Q("7 mm")),
    Sketcher.Constraint("DistanceY", -1, 1, 5, 3, Q("50.5 mm")),
    Sketcher.Constraint("DistanceX", -1, 1, 9, 3, Q("15.5 mm")),
    Sketcher.Constraint("DistanceY", -1, 1, 15, 3, Q("1288.5 mm")),
    Sketcher.Constraint("DistanceY", -1, 1, 13, 3, Q("151.536811 mm")),
])
pocket3 = body.newObject("PartDesign::Pocket", "Pocket002")
pocket3.Profile = sketch4
pocket3.Type = "ThroughAll"

sketch5 = body.newObject("Sketcher::SketchObject", "Sketch004")
sketch5.AttachmentSupport = (doc.getObject("YZ_Plane"), [""])
sketch5.MapMode = "FlatFace"
sketch5.AttachmentOffset = App.Placement(App.Vector(0, 0, 40), App.Rotation())
sketch5.addGeometry([
    Part.Circle(App.Vector(10, 1300, 0), App.Vector(0, 0, 1), 1.6),
    Part.Circle(App.Vector(10, 1340, 0), App.Vector(0, 0, 1), 1.6),
    Part.Circle(App.Vector(10, 1312, 0), App.Vector(0, 0, 1), 1.6),
    Part.Circle(App.Vector(10, 1328, 0), App.Vector(0, 0, 1), 1.6),
    Part.Circle(App.Vector(10, 147.036811, 0), App.Vector(0, 0, 1), 1.6),
    Part.Circle(App.Vector(10, 107.036811, 0), App.Vector(0, 0, 1), 1.6),
    Part.Circle(App.Vector(10, 135.036811, 0), App.Vector(0, 0, 1), 1.6),
    Part.Circle(App.Vector(10, 119.036811, 0), App.Vector(0, 0, 1), 1.6),
], False)
sketch5.addConstraint([
    Sketcher.Constraint("Equal", 0, 1),
    Sketcher.Constraint("Equal", 1, 2),
    Sketcher.Constraint("Equal", 2, 3),
    Sketcher.Constraint("Equal", 3, 4),
    Sketcher.Constraint("Equal", 4, 5),
    Sketcher.Constraint("Equal", 5, 6),
    Sketcher.Constraint("Equal", 6, 7),
    Sketcher.Constraint("Vertical", 0, 3, 1, 3),
    Sketcher.Constraint("Vertical", 1, 3, 2, 3),
    Sketcher.Constraint("Vertical", 2, 3, 3, 3),
    Sketcher.Constraint("Vertical", 3, 3, 4, 3),
    Sketcher.Constraint("Vertical", 4, 3, 5, 3),
    Sketcher.Constraint("Vertical", 5, 3, 6, 3),
    Sketcher.Constraint("Vertical", 6, 3, 7, 3),
    Sketcher.Constraint("Diameter", 0, Q("3.2 mm")),
    Sketcher.Constraint("DistanceX", -1, 1, 0, 3, Q("10 mm")),
    Sketcher.Constraint("DistanceY", -1, 1, 0, 3, Q("1300 mm")),
    Sketcher.Constraint("DistanceY", -1, 1, 1, 3, Q("1340 mm")),
    Sketcher.Constraint("DistanceY", -1, 1, 2, 3, Q("1312 mm")),
    Sketcher.Constraint("DistanceY", -1, 1, 3, 3, Q("1328 mm")),
    Sketcher.Constraint("DistanceY", 5, 3, 4, 3, Q("40 mm")),
    Sketcher.Constraint("DistanceY", 6, 3, 4, 3, Q("12 mm")),
    Sketcher.Constraint("DistanceY", 5, 3, 7, 3, Q("12 mm")),
    Sketcher.Constraint("DistanceY", -1, 1, 4, 3, Q("147.036811 mm")),
])
pocket4 = body.newObject("PartDesign::Pocket", "Pocket003")
pocket4.Profile = sketch5
pocket4.Type = "ThroughAll"

doc.recompute()
